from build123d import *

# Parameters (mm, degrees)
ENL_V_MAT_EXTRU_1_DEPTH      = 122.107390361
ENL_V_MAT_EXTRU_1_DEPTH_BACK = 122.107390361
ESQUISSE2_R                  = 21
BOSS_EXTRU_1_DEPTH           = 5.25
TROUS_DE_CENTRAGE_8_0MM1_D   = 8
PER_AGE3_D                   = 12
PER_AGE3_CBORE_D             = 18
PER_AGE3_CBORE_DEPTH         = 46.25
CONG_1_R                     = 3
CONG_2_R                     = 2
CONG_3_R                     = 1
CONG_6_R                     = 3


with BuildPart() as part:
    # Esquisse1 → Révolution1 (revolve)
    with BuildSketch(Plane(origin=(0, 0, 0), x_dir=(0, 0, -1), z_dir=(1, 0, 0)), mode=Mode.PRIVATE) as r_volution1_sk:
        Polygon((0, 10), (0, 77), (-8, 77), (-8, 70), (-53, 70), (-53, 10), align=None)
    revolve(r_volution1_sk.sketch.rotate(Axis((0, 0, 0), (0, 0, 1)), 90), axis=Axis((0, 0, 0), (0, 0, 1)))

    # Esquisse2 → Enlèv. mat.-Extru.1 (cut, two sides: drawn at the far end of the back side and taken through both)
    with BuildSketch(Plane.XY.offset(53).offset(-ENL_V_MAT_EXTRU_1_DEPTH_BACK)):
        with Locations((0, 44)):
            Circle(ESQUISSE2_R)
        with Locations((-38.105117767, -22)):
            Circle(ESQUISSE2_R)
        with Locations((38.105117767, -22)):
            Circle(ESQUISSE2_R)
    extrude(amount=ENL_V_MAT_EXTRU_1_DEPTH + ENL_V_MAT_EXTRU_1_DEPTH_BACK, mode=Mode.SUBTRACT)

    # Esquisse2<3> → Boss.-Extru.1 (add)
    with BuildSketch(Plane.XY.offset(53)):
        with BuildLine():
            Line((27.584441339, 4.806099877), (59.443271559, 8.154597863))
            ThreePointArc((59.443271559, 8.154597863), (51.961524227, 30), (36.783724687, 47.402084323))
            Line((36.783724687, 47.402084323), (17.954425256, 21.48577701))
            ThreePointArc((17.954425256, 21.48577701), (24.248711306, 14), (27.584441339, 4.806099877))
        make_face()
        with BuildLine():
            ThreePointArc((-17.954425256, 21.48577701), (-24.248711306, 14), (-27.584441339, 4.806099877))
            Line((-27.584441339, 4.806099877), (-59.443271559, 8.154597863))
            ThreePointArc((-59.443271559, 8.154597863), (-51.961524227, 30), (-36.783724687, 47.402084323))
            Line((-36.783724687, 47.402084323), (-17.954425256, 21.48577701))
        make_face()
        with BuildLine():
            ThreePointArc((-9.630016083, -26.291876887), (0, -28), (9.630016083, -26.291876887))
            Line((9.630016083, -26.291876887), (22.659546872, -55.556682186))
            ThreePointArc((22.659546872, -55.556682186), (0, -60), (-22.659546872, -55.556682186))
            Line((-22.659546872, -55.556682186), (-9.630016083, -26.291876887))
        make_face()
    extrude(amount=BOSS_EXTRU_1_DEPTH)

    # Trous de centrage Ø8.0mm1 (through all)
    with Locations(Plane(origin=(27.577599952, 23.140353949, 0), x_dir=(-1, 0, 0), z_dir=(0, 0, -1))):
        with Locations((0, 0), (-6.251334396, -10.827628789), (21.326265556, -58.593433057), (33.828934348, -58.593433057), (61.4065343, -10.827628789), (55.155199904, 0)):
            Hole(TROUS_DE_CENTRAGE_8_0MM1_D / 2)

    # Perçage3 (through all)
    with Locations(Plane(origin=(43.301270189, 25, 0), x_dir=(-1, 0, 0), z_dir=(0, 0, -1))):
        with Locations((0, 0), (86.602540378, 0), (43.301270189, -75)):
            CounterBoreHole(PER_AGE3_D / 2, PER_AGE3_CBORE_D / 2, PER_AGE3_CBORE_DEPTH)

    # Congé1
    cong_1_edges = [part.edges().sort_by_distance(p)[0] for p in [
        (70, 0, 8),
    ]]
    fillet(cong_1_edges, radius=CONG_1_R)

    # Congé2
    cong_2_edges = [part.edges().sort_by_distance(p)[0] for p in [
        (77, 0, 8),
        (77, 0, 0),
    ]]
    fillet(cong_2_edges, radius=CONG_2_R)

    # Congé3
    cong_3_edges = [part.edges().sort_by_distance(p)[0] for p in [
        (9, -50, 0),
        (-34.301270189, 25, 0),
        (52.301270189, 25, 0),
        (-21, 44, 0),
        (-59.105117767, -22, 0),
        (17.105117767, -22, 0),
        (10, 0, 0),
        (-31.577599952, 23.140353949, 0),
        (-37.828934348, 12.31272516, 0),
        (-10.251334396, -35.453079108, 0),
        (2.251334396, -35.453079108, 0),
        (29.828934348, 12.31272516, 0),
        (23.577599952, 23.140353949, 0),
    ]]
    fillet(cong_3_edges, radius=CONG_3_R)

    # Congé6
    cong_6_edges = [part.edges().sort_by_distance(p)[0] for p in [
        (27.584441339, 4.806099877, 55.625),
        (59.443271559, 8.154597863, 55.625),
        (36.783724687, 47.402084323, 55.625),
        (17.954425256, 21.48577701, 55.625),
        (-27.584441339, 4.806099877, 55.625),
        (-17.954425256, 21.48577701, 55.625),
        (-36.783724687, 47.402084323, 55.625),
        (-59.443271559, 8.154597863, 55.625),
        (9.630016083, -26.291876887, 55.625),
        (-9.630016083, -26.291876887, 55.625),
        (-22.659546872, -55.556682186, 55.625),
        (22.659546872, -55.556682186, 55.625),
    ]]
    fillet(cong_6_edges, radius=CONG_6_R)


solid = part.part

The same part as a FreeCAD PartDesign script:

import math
import FreeCAD as App
import Part
import Sketcher
Q = App.Units.Quantity


def edges_at(feature, points):
    """Names of the edges that pass closest to the given points."""
    edges = feature.Shape.Edges
    near = lambda p: min(range(len(edges)), key=lambda i: edges[i].distToShape(Part.Vertex(*p))[0])
    return sorted({f"Edge{near(p) + 1}" for p in points})

doc = App.newDocument("Part")
body = doc.addObject("PartDesign::Body", "Body")

# Sketch on YZ plane
sketch1 = body.newObject("Sketcher::SketchObject", "Sketch")
sketch1.AttachmentSupport = (doc.getObject("YZ_Plane"), [""])
sketch1.MapMode = "FlatFace"
sketch1.addGeometry(Part.LineSegment(App.Vector(10, 0, 0), App.Vector(77, 0, 0)), False)
sketch1.addGeometry(Part.LineSegment(App.Vector(77, 0, 0), App.Vector(77, 8, 0)), False)
sketch1.addGeometry(Part.LineSegment(App.Vector(77, 8, 0), App.Vector(70, 8, 0)), False)
sketch1.addGeometry(Part.LineSegment(App.Vector(70, 8, 0), App.Vector(70, 53, 0)), False)
sketch1.addGeometry(Part.LineSegment(App.Vector(70, 53, 0), App.Vector(10, 53, 0)), False)
sketch1.addGeometry(Part.LineSegment(App.Vector(10, 53, 0), App.Vector(10, 0, 0)), False)
sketch1.addConstraint(Sketcher.Constraint("Coincident", 0, 2, 1, 1))
sketch1.addConstraint(Sketcher.Constraint("Coincident", 1, 2, 2, 1))
sketch1.addConstraint(Sketcher.Constraint("Coincident", 2, 2, 3, 1))
sketch1.addConstraint(Sketcher.Constraint("Coincident", 3, 2, 4, 1))
sketch1.addConstraint(Sketcher.Constraint("Coincident", 4, 2, 5, 1))
sketch1.addConstraint(Sketcher.Constraint("Coincident", 5, 2, 0, 1))
sketch1.addConstraint(Sketcher.Constraint("Horizontal", 0))
sketch1.addConstraint(Sketcher.Constraint("Vertical", 1))
sketch1.addConstraint(Sketcher.Constraint("Horizontal", 2))
sketch1.addConstraint(Sketcher.Constraint("Vertical", 3))
sketch1.addConstraint(Sketcher.Constraint("Horizontal", 4))
sketch1.addConstraint(Sketcher.Constraint("Vertical", 5))
sketch1.addConstraint(Sketcher.Constraint("PointOnObject", 0, 2, -1))
sketch1.addConstraint(Sketcher.Constraint("DistanceX", 0, 1, 0, 2, Q("67 mm")))
sketch1.addConstraint(Sketcher.Constraint("DistanceX", 2, 2, 2, 1, Q("7 mm")))
sketch1.addConstraint(Sketcher.Constraint("DistanceY", 1, 1, 1, 2, Q("8 mm")))
sketch1.addConstraint(Sketcher.Constraint("DistanceY", 3, 1, 3, 2, Q("45 mm")))
sketch1.addConstraint(Sketcher.Constraint("DistanceX", -1, 1, 0, 2, Q("77 mm")))
revolution = body.newObject("PartDesign::Revolution", "Revolution")
revolution.Profile = sketch1
revolution.ReferenceAxis = (sketch1, ["V_Axis"])
revolution.Angle = 360

# Sketch on XY plane
sketch2 = body.newObject("Sketcher::SketchObject", "Sketch001")
sketch2.AttachmentSupport = (doc.getObject("XY_Plane"), [""])
sketch2.MapMode = "FlatFace"
sketch2.AttachmentOffset = App.Placement(App.Vector(0, 0, 53), App.Rotation())
sketch2.addGeometry(Part.Circle(App.Vector(0, 44, 0), App.Vector(0, 0, 1), 21), False)
sketch2.addGeometry(Part.Circle(App.Vector(-38.105118, -22, 0), App.Vector(0, 0, 1), 21), False)
sketch2.addGeometry(Part.Circle(App.Vector(38.105118, -22, 0), App.Vector(0, 0, 1), 21), False)
sketch2.addConstraint(Sketcher.Constraint("Equal", 0, 1))
sketch2.addConstraint(Sketcher.Constraint("Equal", 1, 2))
sketch2.addConstraint(Sketcher.Constraint("Symmetric", 1, 3, 2, 3, -2))
sketch2.addConstraint(Sketcher.Constraint("PointOnObject", 0, 3, -2))
sketch2.addConstraint(Sketcher.Constraint("Diameter", 0, Q("42 mm")))
sketch2.addConstraint(Sketcher.Constraint("DistanceY", -1, 1, 0, 3, Q("44 mm")))
sketch2.addConstraint(Sketcher.Constraint("DistanceY", 1, 3, -1, 1, Q("22 mm")))
sketch2.addConstraint(Sketcher.Constraint("DistanceX", 1, 3, -1, 1, Q("38.105118 mm")))
pocket1 = body.newObject("PartDesign::Pocket", "Pocket")
pocket1.Profile = sketch2
pocket1.Type = "ThroughAll"
pocket1.Midplane = True

# Sketch on XY plane
sketch3 = body.newObject("Sketcher::SketchObject", "Sketch002")
sketch3.AttachmentSupport = (doc.getObject("XY_Plane"), [""])
sketch3.MapMode = "FlatFace"
sketch3.AttachmentOffset = App.Placement(App.Vector(0, 0, 53), App.Rotation())
sketch3.addGeometry(Part.LineSegment(App.Vector(27.584441, 4.8061, 0), App.Vector(59.443272, 8.154598, 0)), False)
sketch3.addGeometry(Part.ArcOfCircle(Part.Circle(App.Vector(0, 0, 0), App.Vector(0, 0, 1), 60), math.radians(7.811242), math.radians(52.188758)), False)
sketch3.addGeometry(Part.LineSegment(App.Vector(36.783725, 47.402084, 0), App.Vector(17.954425, 21.485777, 0)), False)
sketch3.addGeometry(Part.ArcOfCircle(Part.Circle(App.Vector(0, 0, 0), App.Vector(0, 0, 1), 28), math.radians(9.883559), math.radians(50.116441)), False)
sketch3.addGeometry(Part.ArcOfCircle(Part.Circle(App.Vector(0, 0, 0), App.Vector(0, 0, 1), 28), math.radians(129.883559), math.radians(170.116441)), False)
sketch3.addGeometry(Part.LineSegment(App.Vector(-17.954425, 21.485777, 0), App.Vector(-36.783725, 47.402084, 0)), False)
sketch3.addGeometry(Part.ArcOfCircle(Part.Circle(App.Vector(0, 0, 0), App.Vector(0, 0, 1), 60), math.radians(127.811242), math.radians(172.188758)), False)
sketch3.addGeometry(Part.LineSegment(App.Vector(-59.443272, 8.154598, 0), App.Vector(-27.584441, 4.8061, 0)), False)
sketch3.addGeometry(Part.ArcOfCircle(Part.Circle(App.Vector(0, 0, 0), App.Vector(0, 0, 1), 28), math.radians(-110.116441), math.radians(-69.883559)), False)
sketch3.addGeometry(Part.LineSegment(App.Vector(-9.630016, -26.291877, 0), App.Vector(-22.659547, -55.556682, 0)), False)
sketch3.addGeometry(Part.ArcOfCircle(Part.Circle(App.Vector(0, 0, 0), App.Vector(0, 0, 1), 60), math.radians(-112.188758), math.radians(-67.811242)), False)
sketch3.addGeometry(Part.LineSegment(App.Vector(22.659547, -55.556682, 0), App.Vector(9.630016, -26.291877, 0)), False)
sketch3.addConstraint(Sketcher.Constraint("Coincident", 0, 2, 1, 1))
sketch3.addConstraint(Sketcher.Constraint("Coincident", 1, 2, 2, 1))
sketch3.addConstraint(Sketcher.Constraint("Coincident", 2, 2, 3, 2))
sketch3.addConstraint(Sketcher.Constraint("Coincident", 3, 1, 0, 1))
sketch3.addConstraint(Sketcher.Constraint("Coincident", 4, 1, 5, 1))
sketch3.addConstraint(Sketcher.Constraint("Coincident", 5, 2, 6, 1))
sketch3.addConstraint(Sketcher.Constraint("Coincident", 6, 2, 7, 1))
sketch3.addConstraint(Sketcher.Constraint("Coincident", 7, 2, 4, 2))
sketch3.addConstraint(Sketcher.Constraint("Coincident", 8, 1, 9, 1))
sketch3.addConstraint(Sketcher.Constraint("Coincident", 9, 2, 10, 1))
sketch3.addConstraint(Sketcher.Constraint("Coincident", 10, 2, 11, 1))
sketch3.addConstraint(Sketcher.Constraint("Coincident", 11, 2, 8, 2))
sketch3.addConstraint(Sketcher.Constraint("Coincident", 1, 3, -1, 1))
sketch3.addConstraint(Sketcher.Constraint("Coincident", 3, 3, -1, 1))
sketch3.addConstraint(Sketcher.Constraint("Coincident", 4, 3, -1, 1))
sketch3.addConstraint(Sketcher.Constraint("Coincident", 6, 3, -1, 1))
sketch3.addConstraint(Sketcher.Constraint("Coincident", 8, 3, -1, 1))
sketch3.addConstraint(Sketcher.Constraint("Coincident", 10, 3, -1, 1))
sketch3.addConstraint(Sketcher.Constraint("Equal", 3, 4))
sketch3.addConstraint(Sketcher.Constraint("Equal", 1, 6))
sketch3.addConstraint(Sketcher.Constraint("Equal", 4, 8))
sketch3.addConstraint(Sketcher.Constraint("Equal", 6, 10))
sketch3.addConstraint(Sketcher.Constraint("Horizontal", 2, 2, 4, 1))
sketch3.addConstraint(Sketcher.Constraint("Horizontal", 1, 2, 5, 2))
sketch3.addConstraint(Sketcher.Constraint("Horizontal", 0, 2, 6, 2))
sketch3.addConstraint(Sketcher.Constraint("Horizontal", 3, 1, 7, 2))
sketch3.addConstraint(Sketcher.Constraint("Horizontal", 9, 2, 10, 2))
sketch3.addConstraint(Sketcher.Constraint("Horizontal", 8, 1, 11, 2))
sketch3.addConstraint(Sketcher.Constraint("Equal", 0, 2))
sketch3.addConstraint(Sketcher.Constraint("Equal", 7, 9))
sketch3.addConstraint(Sketcher.Constraint("Radius", 1, Q("60 mm")))
sketch3.addConstraint(Sketcher.Constraint("Radius", 3, Q("28 mm")))
sketch3.addConstraint(Sketcher.Constraint("Angle", 0, Q("6 deg")))
sketch3.addConstraint(Sketcher.Constraint("Angle", 2, Q("-126 deg")))
sketch3.addConstraint(Sketcher.Constraint("Angle", 9, Q("-114 deg")))
sketch3.addConstraint(Sketcher.Constraint("DistanceY", -1, 1, 3, 1, Q("4.8061 mm")))
pad1 = body.newObject("PartDesign::Pad", "Pad")
pad1.Profile = sketch3
pad1.Length = 5.25

# Sketch on XY plane
sketch4 = body.newObject("Sketcher::SketchObject", "Sketch003")
sketch4.AttachmentSupport = (doc.getObject("XY_Plane"), [""])
sketch4.MapMode = "FlatFace"
sketch4.addGeometry(Part.Circle(App.Vector(27.5776, 23.140354, 0), App.Vector(0, 0, 1), 4), False)
sketch4.addGeometry(Part.Circle(App.Vector(33.828934, 12.312725, 0), App.Vector(0, 0, 1), 4), False)
sketch4.addGeometry(Part.Circle(App.Vector(6.251334, -35.453079, 0), App.Vector(0, 0, 1), 4), False)
sketch4.addGeometry(Part.Circle(App.Vector(-6.251334, -35.453079, 0), App.Vector(0, 0, 1), 4), False)
sketch4.addGeometry(Part.Circle(App.Vector(-33.828934, 12.312725, 0), App.Vector(0, 0, 1), 4), False)
sketch4.addGeometry(Part.Circle(App.Vector(-27.5776, 23.140354, 0), App.Vector(0, 0, 1), 4), False)
sketch4.addConstraint(Sketcher.Constraint("Equal", 0, 1))
sketch4.addConstraint(Sketcher.Constraint("Equal", 1, 2))
sketch4.addConstraint(Sketcher.Constraint("Equal", 2, 3))
sketch4.addConstraint(Sketcher.Constraint("Equal", 3, 4))
sketch4.addConstraint(Sketcher.Constraint("Equal", 4, 5))
sketch4.addConstraint(Sketcher.Constraint("Symmetric", 2, 3, 3, 3, -2))
sketch4.addConstraint(Sketcher.Constraint("Symmetric", 1, 3, 4, 3, -2))
sketch4.addConstraint(Sketcher.Constraint("Symmetric", 0, 3, 5, 3, -2))
sketch4.addConstraint(Sketcher.Constraint("Diameter", 0, Q("8 mm")))
sketch4.addConstraint(Sketcher.Constraint("DistanceX", -1, 1, 0, 3, Q("27.5776 mm")))
sketch4.addConstraint(Sketcher.Constraint("DistanceX", 2, 3, 1, 3, Q("27.5776 mm")))
sketch4.addConstraint(Sketcher.Constraint("DistanceY", 2, 3, -1, 1, Q("35.453079 mm")))
sketch4.addConstraint(Sketcher.Constraint("DistanceY", 1, 3, 0, 3, Q("10.827629 mm")))
sketch4.addConstraint(Sketcher.Constraint("DistanceX", 3, 3, 2, 3, Q("12.502669 mm")))
sketch4.addConstraint(Sketcher.Constraint("DistanceY", -1, 1, 0, 3, Q("23.140354 mm")))
doc.recompute()
hole = body.newObject("PartDesign::Hole", "Hole")
hole.Profile = sketch4
hole.ThreadType = "None"
hole.Diameter = 8
hole.DepthType = "ThroughAll"
hole.Reversed = True

# Sketch on XY plane
sketch5 = body.newObject("Sketcher::SketchObject", "Sketch004")
sketch5.AttachmentSupport = (doc.getObject("XY_Plane"), [""])
sketch5.MapMode = "FlatFace"
sketch5.addGeometry(Part.Circle(App.Vector(43.30127, 25, 0), App.Vector(0, 0, 1), 6), False)
sketch5.addGeometry(Part.Circle(App.Vector(-43.30127, 25, 0), App.Vector(0, 0, 1), 6), False)
sketch5.addGeometry(Part.Circle(App.Vector(0, -50, 0), App.Vector(0, 0, 1), 6), False)
sketch5.addConstraint(Sketcher.Constraint("Equal", 0, 1))
sketch5.addConstraint(Sketcher.Constraint("Equal", 1, 2))
sketch5.addConstraint(Sketcher.Constraint("Symmetric", 0, 3, 1, 3, -2))
sketch5.addConstraint(Sketcher.Constraint("PointOnObject", 2, 3, -2))
sketch5.addConstraint(Sketcher.Constraint("Diameter", 0, Q("12 mm")))
sketch5.addConstraint(Sketcher.Constraint("DistanceY", -1, 1, 0, 3, Q("25 mm")))
sketch5.addConstraint(Sketcher.Constraint("DistanceY", 2, 3, -1, 1, Q("50 mm")))
sketch5.addConstraint(Sketcher.Constraint("DistanceX", -1, 1, 0, 3, Q("43.30127 mm")))
doc.recompute()
hole2 = body.newObject("PartDesign::Hole", "Hole001")
hole2.Profile = sketch5
hole2.ThreadType = "None"
hole2.Diameter = 12
hole2.DepthType = "ThroughAll"
hole2.HoleCutType = "Counterbore"
hole2.HoleCutDiameter = 18
hole2.HoleCutDepth = 46.25
hole2.Reversed = True
doc.recompute()

fillet = body.newObject("PartDesign::Fillet", "Fillet")
fillet.Base = (hole2, edges_at(hole2, [(70, 0, 8)]))
fillet.Radius = 3
doc.recompute()

fillet2 = body.newObject("PartDesign::Fillet", "Fillet001")
fillet2.Base = (fillet, edges_at(fillet, [(77, 0, 8), (77, 0, 0)]))
fillet2.Radius = 2
doc.recompute()

fillet3 = body.newObject("PartDesign::Fillet", "Fillet002")
fillet3.Base = (fillet2, edges_at(fillet2, [
    (9, -50, 0),
    (-34.301, 25, 0),
    (52.301, 25, 0),
    (-21, 44, 0),
    (-59.105, -22, 0),
    (17.105, -22, 0),
    (10, 0, 0),
    (-31.578, 23.14, 0),
    (-37.829, 12.313, 0),
    (-10.251, -35.453, 0),
    (2.251, -35.453, 0),
    (29.829, 12.313, 0),
    (23.578, 23.14, 0),
]))
fillet3.Radius = 1
doc.recompute()

fillet4 = body.newObject("PartDesign::Fillet", "Fillet003")
fillet4.Base = (fillet3, edges_at(fillet3, [
    (27.584, 4.806, 55.625),
    (59.443, 8.155, 55.625),
    (36.784, 47.402, 55.625),
    (17.954, 21.486, 55.625),
    (-27.584, 4.806, 55.625),
    (-17.954, 21.486, 55.625),
    (-36.784, 47.402, 55.625),
    (-59.443, 8.155, 55.625),
    (9.63, -26.292, 55.625),
    (-9.63, -26.292, 55.625),
    (-22.66, -55.557, 55.625),
    (22.66, -55.557, 55.625),
]))
fillet4.Radius = 3

doc.recompute()
